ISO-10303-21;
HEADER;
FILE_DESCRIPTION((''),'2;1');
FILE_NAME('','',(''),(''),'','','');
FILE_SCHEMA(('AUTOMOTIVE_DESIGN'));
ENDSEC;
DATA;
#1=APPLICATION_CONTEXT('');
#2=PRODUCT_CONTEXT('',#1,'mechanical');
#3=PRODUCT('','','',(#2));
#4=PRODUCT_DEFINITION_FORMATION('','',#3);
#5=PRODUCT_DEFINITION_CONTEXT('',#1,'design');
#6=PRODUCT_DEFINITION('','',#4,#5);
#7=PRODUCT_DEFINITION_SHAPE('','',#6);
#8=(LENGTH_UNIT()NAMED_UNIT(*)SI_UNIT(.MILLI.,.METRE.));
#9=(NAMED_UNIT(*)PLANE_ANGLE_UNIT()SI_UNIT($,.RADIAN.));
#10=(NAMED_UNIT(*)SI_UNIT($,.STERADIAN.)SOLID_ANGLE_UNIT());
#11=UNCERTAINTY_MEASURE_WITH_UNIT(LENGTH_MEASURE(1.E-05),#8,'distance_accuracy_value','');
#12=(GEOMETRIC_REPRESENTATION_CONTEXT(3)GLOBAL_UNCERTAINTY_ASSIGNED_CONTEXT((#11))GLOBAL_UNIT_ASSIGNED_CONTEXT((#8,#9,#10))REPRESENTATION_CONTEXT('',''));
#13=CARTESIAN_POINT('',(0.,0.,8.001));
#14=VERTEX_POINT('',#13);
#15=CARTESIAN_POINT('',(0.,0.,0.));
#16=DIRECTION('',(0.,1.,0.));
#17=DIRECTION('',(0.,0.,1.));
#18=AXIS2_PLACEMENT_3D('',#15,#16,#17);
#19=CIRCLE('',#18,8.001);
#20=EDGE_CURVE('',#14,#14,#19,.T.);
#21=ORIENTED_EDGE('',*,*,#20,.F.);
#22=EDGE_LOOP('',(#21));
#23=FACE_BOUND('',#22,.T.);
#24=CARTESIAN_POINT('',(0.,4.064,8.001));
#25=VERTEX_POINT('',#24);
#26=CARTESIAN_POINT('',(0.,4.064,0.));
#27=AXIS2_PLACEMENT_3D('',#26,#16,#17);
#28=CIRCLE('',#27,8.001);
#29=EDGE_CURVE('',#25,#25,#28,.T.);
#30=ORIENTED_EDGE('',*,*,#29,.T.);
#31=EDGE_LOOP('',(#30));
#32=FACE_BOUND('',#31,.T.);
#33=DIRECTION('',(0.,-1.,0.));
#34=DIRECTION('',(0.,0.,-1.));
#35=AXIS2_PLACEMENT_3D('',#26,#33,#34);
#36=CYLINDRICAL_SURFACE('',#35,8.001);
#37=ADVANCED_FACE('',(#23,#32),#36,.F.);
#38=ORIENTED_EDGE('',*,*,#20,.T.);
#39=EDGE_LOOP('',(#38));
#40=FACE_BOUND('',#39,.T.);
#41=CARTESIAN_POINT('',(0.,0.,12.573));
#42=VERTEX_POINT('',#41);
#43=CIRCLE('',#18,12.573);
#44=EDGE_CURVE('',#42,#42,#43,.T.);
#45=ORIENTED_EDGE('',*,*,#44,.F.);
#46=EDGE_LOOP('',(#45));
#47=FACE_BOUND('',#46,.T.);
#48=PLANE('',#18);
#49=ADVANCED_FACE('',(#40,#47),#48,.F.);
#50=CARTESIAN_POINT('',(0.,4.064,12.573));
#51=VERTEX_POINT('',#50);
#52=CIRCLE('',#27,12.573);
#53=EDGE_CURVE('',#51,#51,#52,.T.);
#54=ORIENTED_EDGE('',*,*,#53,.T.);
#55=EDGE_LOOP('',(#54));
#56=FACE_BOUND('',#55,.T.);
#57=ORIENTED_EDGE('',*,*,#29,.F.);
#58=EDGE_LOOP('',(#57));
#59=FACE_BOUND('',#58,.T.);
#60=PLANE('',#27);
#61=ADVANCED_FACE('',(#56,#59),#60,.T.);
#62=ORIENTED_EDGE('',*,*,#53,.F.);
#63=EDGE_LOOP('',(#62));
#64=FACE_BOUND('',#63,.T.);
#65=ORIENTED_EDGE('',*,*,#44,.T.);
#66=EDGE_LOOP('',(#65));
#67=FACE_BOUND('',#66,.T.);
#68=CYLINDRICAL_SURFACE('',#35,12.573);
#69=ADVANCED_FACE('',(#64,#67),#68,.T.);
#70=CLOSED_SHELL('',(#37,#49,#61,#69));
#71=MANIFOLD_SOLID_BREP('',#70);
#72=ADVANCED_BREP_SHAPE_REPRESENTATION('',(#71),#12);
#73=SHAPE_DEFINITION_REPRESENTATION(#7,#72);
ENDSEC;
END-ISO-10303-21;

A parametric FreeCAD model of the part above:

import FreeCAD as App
import Part
import Sketcher
from FreeCAD import Vector
Q = App.Units.Quantity

doc = App.newDocument("Part")
body = doc.addObject("PartDesign::Body", "Body")

# Sketch on XZ plane
sketch1 = doc.addObject("Sketcher::SketchObject", "Sketch")
body.addObject(sketch1)
sketch1.AttachmentSupport = (doc.XZ_Plane, [""])
sketch1.MapMode = "FlatFace"
sketch1.addGeometry([
    Part.Circle(Vector(0, 0, 0), Vector(0, 0, 1), 13),
    Part.Circle(Vector(0, 0, 0), Vector(0, 0, 1), 8),
], False)
sketch1.addConstraint([
    Sketcher.Constraint("Coincident", 0, 3, -1, 1),
    Sketcher.Constraint("Coincident", 1, 3, -1, 1),
    Sketcher.Constraint("Diameter", 0, Q("0.99 in")),
    Sketcher.Constraint("Diameter", 1, Q("0.63 in")),
])
pad1 = doc.addObject("PartDesign::Pad", "Pad")
body.addObject(pad1)
pad1.Profile = sketch1
pad1.Length = Q("0.16 in")
pad1.Reversed = True

doc.recompute()
